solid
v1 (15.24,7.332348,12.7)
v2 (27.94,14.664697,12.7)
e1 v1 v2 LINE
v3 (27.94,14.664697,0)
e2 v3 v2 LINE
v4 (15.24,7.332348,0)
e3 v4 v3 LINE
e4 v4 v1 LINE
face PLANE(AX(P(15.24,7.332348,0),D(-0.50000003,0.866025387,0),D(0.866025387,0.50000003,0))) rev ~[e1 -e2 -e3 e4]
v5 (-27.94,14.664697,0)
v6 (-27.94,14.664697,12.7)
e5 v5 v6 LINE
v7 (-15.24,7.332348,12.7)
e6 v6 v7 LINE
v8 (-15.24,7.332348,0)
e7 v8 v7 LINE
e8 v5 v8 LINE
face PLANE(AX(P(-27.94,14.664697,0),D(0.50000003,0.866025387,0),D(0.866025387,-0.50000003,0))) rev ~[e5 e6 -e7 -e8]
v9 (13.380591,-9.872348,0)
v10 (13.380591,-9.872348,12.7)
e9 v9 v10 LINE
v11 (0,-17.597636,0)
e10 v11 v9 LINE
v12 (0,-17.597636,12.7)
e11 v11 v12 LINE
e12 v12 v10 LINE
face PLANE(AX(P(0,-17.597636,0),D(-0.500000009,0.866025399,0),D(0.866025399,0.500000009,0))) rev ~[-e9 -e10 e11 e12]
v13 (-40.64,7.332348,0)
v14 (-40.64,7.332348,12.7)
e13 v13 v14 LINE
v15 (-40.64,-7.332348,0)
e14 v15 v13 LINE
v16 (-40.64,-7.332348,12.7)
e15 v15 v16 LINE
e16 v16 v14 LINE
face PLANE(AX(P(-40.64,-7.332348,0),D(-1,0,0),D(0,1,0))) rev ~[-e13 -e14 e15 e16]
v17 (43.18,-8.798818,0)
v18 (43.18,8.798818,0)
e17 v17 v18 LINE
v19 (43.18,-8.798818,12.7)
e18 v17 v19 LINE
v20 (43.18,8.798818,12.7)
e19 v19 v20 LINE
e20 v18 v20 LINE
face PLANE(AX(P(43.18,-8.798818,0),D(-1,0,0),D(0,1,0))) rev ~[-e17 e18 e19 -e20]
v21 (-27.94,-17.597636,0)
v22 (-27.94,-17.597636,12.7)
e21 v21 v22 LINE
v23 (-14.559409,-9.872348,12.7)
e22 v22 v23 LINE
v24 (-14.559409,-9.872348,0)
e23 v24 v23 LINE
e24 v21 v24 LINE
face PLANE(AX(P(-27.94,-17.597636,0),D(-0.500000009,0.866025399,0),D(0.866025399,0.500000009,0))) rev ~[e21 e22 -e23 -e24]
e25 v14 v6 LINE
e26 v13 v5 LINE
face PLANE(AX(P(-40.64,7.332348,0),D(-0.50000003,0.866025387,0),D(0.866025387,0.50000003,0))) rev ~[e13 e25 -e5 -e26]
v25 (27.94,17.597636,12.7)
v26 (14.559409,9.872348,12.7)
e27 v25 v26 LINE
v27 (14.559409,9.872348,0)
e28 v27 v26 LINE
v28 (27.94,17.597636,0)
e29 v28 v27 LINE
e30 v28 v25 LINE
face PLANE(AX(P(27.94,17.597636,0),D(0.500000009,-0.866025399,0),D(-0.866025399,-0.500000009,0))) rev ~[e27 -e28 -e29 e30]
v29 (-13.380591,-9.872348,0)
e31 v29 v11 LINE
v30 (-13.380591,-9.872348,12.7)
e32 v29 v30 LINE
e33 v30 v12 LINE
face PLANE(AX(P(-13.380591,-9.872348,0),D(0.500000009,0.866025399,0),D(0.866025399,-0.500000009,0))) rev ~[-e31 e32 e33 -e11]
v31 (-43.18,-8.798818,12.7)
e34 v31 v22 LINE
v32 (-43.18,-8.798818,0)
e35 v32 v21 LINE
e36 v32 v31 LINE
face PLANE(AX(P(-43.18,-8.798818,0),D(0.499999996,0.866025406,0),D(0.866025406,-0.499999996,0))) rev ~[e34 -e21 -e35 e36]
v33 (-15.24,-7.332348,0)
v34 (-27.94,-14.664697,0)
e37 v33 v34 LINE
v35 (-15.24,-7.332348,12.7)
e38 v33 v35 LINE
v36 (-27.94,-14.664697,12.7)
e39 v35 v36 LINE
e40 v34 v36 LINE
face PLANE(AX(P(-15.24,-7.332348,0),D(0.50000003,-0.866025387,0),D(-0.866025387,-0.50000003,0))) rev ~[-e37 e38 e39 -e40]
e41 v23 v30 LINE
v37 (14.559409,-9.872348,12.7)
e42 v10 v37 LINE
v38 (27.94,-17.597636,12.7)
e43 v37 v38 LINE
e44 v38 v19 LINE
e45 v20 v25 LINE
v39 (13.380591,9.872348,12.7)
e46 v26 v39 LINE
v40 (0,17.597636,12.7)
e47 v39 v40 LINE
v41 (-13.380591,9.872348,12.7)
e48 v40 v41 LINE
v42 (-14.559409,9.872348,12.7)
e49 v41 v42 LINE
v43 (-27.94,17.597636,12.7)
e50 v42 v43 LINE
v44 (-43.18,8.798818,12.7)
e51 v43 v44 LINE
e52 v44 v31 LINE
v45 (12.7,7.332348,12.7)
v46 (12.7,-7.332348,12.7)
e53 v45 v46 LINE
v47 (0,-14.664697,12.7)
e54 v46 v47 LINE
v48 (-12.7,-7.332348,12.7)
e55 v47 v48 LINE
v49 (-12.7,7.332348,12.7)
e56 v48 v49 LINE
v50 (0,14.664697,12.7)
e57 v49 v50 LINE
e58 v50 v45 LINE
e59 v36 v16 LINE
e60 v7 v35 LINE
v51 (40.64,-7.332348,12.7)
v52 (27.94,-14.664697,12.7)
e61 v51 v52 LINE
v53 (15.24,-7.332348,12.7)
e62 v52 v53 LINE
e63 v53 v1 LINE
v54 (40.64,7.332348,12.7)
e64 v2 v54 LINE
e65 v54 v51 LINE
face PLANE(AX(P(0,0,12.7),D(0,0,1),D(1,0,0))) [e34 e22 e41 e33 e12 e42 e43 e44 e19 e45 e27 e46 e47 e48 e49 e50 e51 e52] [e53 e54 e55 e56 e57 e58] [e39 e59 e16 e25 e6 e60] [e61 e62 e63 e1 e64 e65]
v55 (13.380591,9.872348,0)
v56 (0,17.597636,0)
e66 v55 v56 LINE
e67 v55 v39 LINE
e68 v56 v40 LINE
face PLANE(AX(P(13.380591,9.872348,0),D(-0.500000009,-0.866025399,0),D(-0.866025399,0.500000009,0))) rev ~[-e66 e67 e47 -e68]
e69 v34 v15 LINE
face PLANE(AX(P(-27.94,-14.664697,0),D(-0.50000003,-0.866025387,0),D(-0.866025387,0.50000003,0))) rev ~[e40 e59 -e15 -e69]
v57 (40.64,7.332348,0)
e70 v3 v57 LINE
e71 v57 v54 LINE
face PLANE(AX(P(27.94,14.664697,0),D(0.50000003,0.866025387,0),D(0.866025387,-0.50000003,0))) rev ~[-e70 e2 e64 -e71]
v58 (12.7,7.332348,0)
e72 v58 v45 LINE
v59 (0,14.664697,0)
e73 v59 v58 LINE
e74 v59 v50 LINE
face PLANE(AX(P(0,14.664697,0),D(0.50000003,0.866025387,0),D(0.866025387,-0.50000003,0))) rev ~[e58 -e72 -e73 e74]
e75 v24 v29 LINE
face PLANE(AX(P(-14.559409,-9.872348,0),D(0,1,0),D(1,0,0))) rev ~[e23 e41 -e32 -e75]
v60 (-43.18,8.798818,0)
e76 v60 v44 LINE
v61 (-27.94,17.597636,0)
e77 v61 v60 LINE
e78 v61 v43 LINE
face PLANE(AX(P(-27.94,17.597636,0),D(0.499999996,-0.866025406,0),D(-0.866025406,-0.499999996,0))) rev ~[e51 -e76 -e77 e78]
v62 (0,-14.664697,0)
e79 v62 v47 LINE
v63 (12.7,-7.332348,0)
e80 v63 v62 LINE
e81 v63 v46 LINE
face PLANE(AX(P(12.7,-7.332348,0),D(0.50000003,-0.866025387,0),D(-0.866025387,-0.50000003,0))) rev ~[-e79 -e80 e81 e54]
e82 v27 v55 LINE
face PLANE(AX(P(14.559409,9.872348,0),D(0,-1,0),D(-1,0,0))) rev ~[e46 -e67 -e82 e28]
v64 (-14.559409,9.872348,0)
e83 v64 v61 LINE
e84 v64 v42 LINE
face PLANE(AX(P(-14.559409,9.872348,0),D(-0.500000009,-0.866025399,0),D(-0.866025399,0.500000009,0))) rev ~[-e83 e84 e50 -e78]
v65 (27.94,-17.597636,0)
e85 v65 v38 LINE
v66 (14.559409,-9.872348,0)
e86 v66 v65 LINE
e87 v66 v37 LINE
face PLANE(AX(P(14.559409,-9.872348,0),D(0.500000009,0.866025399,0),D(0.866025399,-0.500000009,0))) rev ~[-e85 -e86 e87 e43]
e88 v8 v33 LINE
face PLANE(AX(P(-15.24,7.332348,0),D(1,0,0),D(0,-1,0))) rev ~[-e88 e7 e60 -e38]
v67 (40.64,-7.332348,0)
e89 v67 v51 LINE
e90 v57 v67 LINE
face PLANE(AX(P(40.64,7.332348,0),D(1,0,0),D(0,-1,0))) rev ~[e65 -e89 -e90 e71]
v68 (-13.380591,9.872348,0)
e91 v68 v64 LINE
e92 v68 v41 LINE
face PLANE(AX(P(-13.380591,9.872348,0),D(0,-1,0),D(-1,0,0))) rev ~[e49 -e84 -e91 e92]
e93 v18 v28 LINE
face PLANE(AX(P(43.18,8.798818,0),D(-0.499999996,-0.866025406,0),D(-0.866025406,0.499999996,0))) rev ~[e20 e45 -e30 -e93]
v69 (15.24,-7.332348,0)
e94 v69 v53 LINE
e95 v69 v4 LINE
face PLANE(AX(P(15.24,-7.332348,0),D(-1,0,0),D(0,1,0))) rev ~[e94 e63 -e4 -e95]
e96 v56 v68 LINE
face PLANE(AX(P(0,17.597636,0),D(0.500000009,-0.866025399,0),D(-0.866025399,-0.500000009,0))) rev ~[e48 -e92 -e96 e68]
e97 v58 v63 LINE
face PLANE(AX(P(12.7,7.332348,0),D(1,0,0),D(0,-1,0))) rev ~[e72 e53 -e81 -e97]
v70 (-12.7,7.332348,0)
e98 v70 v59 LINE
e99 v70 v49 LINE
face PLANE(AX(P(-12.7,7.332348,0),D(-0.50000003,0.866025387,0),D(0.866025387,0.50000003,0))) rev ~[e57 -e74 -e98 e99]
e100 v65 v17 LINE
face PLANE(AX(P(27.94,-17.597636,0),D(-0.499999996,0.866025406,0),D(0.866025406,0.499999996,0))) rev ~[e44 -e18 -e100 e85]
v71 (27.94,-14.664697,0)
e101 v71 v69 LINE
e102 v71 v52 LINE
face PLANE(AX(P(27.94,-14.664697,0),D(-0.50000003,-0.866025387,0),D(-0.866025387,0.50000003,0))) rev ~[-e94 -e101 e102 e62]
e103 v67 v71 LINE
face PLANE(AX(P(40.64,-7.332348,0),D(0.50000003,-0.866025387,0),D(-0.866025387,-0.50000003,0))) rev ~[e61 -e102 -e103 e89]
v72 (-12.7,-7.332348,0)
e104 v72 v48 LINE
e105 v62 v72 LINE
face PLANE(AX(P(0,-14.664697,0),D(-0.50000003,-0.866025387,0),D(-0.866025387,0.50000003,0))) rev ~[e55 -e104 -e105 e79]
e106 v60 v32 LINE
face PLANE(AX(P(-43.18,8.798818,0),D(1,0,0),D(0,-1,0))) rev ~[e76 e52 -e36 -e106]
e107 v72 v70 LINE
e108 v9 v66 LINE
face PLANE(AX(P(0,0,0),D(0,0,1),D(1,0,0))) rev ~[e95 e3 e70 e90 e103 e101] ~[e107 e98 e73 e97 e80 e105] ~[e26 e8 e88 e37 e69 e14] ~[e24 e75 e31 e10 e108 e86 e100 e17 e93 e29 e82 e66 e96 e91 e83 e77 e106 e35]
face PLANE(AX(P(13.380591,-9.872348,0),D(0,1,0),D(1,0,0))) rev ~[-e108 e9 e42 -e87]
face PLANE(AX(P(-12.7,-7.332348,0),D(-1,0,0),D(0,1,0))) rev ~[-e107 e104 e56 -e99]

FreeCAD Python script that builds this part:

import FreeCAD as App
import Part
import Sketcher
from FreeCAD import Vector
Q = App.Units.Quantity


def add_polygon(sketch, points):
    """Adds a closed chain of lines whose ends are joined by coincident constraints."""
    first, n = sketch.GeometryCount, len(points)
    for a, b in zip(points, points[1:] + points[:1]):
        sketch.addGeometry(Part.LineSegment(App.Vector(*a, 0), App.Vector(*b, 0)), False)
    for i in range(n):
        sketch.addConstraint(Sketcher.Constraint("Coincident", first + i, 2, first + (i + 1) % n, 1))

doc = App.newDocument("Part")
body = doc.addObject("PartDesign::Body", "Body")

# Sketch on XY plane
sketch1 = body.newObject("Sketcher::SketchObject", "Sketch")
sketch1.AttachmentSupport = (doc.getObject("XY_Plane"), [""])
sketch1.MapMode = "FlatFace"
add_polygon(sketch1, [(-43.2, 8.8), (-43.2, -8.8), (-27.9, -17.6), (-14.6, -9.9), (-13.4, -9.9), (0, -17.6), (13.4, -9.9), (14.6, -9.9), (27.9, -17.6), (43.2, -8.8), (43.2, 8.8), (27.9, 17.6), (14.6, 9.9), (13.4, 9.9), (0, 17.6), (-13.4, 9.9), (-14.6, 9.9), (-27.9, 17.6)])  # lines 0-17
add_polygon(sketch1, [(-40.6, 7.3), (-27.9, 14.7), (-15.2, 7.3), (-15.2, -7.3), (-27.9, -14.7), (-40.6, -7.3)])  # lines 18-23
add_polygon(sketch1, [(12.7, -7.3), (0, -14.7), (-12.7, -7.3), (-12.7, 7.3), (0, 14.7), (12.7, 7.3)])  # lines 24-29
add_polygon(sketch1, [(40.6, -7.3), (27.9, -14.7), (15.2, -7.3), (15.2, 7.3), (27.9, 14.7), (40.6, 7.3)])  # lines 30-35
sketch1.addConstraint(Sketcher.Constraint("Vertical", 0))
sketch1.addConstraint(Sketcher.Constraint("Horizontal", 3))
sketch1.addConstraint(Sketcher.Constraint("Horizontal", 6))
sketch1.addConstraint(Sketcher.Constraint("Vertical", 9))
sketch1.addConstraint(Sketcher.Constraint("Horizontal", 12))
sketch1.addConstraint(Sketcher.Constraint("Horizontal", 15))
sketch1.addConstraint(Sketcher.Constraint("Vertical", 20))
sketch1.addConstraint(Sketcher.Constraint("Vertical", 23))
sketch1.addConstraint(Sketcher.Constraint("Vertical", 26))
sketch1.addConstraint(Sketcher.Constraint("Vertical", 29))
sketch1.addConstraint(Sketcher.Constraint("Vertical", 32))
sketch1.addConstraint(Sketcher.Constraint("Vertical", 35))
sketch1.addConstraint(Sketcher.Constraint("Symmetric", 0, 2, 9, 2, -1, 1))
sketch1.addConstraint(Sketcher.Constraint("Symmetric", 1, 2, 10, 2, -1, 1))
sketch1.addConstraint(Sketcher.Constraint("Symmetric", 2, 2, 11, 2, -1, 1))
sketch1.addConstraint(Sketcher.Constraint("Symmetric", 4, 2, 13, 2, -1, 1))
sketch1.addConstraint(Sketcher.Constraint("Symmetric", 5, 2, 14, 2, -1, 1))
sketch1.addConstraint(Sketcher.Constraint("Symmetric", 7, 2, 16, 2, -1, 1))
sketch1.addConstraint(Sketcher.Constraint("Symmetric", 24, 2, 27, 2, -1, 1))
sketch1.addConstraint(Sketcher.Constraint("Symmetric", 25, 2, 28, 2, -1, 1))
sketch1.addConstraint(Sketcher.Constraint("Symmetric", 18, 2, 30, 2, -1, 1))
sketch1.addConstraint(Sketcher.Constraint("Symmetric", 19, 2, 31, 2, -1, 1))
sketch1.addConstraint(Sketcher.Constraint("Symmetric", 21, 2, 33, 2, -1, 1))
sketch1.addConstraint(Sketcher.Constraint("Symmetric", 22, 2, 34, 2, -1, 1))
sketch1.addConstraint(Sketcher.Constraint("Symmetric", 3, 2, 5, 2, -2))
sketch1.addConstraint(Sketcher.Constraint("Symmetric", 1, 2, 7, 2, -2))
sketch1.addConstraint(Sketcher.Constraint("Symmetric", 21, 2, 30, 2, -2))
sketch1.addConstraint(Sketcher.Constraint("PointOnObject", 4, 2, -2))
sketch1.addConstraint(Sketcher.Constraint("PointOnObject", 24, 2, -2))
sketch1.addConstraint(Sketcher.Constraint("Parallel", 1, 4))
sketch1.addConstraint(Sketcher.Constraint("Parallel", 2, 5))
sketch1.addConstraint(Sketcher.Constraint("Parallel", 4, 7))
sketch1.addConstraint(Sketcher.Constraint("Parallel", 5, 8))
sketch1.addConstraint(Sketcher.Constraint("Parallel", 10, 13))
sketch1.addConstraint(Sketcher.Constraint("Parallel", 13, 16))
sketch1.addConstraint(Sketcher.Constraint("Parallel", 14, 17))
sketch1.addConstraint(Sketcher.Constraint("Parallel", 17, 18))
sketch1.addConstraint(Sketcher.Constraint("Parallel", 16, 19))
sketch1.addConstraint(Sketcher.Constraint("Parallel", 18, 21))
sketch1.addConstraint(Sketcher.Constraint("Parallel", 19, 22))
sketch1.addConstraint(Sketcher.Constraint("Parallel", 21, 24))
sketch1.addConstraint(Sketcher.Constraint("Parallel", 22, 25))
sketch1.addConstraint(Sketcher.Constraint("Parallel", 24, 27))
sketch1.addConstraint(Sketcher.Constraint("Parallel", 27, 30))
sketch1.addConstraint(Sketcher.Constraint("Parallel", 30, 33))
sketch1.addConstraint(Sketcher.Constraint("Horizontal", 1, 2, 4, 2))
sketch1.addConstraint(Sketcher.Constraint("Horizontal", 20, 2, 22, 2))
sketch1.addConstraint(Sketcher.Constraint("Horizontal", 21, 2, 24, 2))
sketch1.addConstraint(Sketcher.Constraint("Horizontal", 22, 2, 25, 2))
sketch1.addConstraint(Sketcher.Constraint("Vertical", 16, 2, 18, 2))
sketch1.addConstraint(Sketcher.Constraint("Angle", 1, Q("-30 deg")))
sketch1.addConstraint(Sketcher.Constraint("DistanceX", 0, 2, -1, 1, Q("1.7 in")))
sketch1.addConstraint(Sketcher.Constraint("DistanceX", 1, 2, -1, 1, Q("1.1 in")))
sketch1.addConstraint(Sketcher.Constraint("DistanceX", 19, 2, -1, 1, Q("0.6 in")))
sketch1.addConstraint(Sketcher.Constraint("DistanceY", 19, 2, 15, 2, Q("0.1 in")))
sketch1.addConstraint(Sketcher.Constraint("DistanceX", 3, 1, 3, 2, 1.178818))
sketch1.addConstraint(Sketcher.Constraint("DistanceY", 0, 2, 0, 1, 17.597636))
pad1 = body.newObject("PartDesign::Pad", "Pad")
pad1.Profile = sketch1
pad1.Length = Q("0.5 in")

doc.recompute()
